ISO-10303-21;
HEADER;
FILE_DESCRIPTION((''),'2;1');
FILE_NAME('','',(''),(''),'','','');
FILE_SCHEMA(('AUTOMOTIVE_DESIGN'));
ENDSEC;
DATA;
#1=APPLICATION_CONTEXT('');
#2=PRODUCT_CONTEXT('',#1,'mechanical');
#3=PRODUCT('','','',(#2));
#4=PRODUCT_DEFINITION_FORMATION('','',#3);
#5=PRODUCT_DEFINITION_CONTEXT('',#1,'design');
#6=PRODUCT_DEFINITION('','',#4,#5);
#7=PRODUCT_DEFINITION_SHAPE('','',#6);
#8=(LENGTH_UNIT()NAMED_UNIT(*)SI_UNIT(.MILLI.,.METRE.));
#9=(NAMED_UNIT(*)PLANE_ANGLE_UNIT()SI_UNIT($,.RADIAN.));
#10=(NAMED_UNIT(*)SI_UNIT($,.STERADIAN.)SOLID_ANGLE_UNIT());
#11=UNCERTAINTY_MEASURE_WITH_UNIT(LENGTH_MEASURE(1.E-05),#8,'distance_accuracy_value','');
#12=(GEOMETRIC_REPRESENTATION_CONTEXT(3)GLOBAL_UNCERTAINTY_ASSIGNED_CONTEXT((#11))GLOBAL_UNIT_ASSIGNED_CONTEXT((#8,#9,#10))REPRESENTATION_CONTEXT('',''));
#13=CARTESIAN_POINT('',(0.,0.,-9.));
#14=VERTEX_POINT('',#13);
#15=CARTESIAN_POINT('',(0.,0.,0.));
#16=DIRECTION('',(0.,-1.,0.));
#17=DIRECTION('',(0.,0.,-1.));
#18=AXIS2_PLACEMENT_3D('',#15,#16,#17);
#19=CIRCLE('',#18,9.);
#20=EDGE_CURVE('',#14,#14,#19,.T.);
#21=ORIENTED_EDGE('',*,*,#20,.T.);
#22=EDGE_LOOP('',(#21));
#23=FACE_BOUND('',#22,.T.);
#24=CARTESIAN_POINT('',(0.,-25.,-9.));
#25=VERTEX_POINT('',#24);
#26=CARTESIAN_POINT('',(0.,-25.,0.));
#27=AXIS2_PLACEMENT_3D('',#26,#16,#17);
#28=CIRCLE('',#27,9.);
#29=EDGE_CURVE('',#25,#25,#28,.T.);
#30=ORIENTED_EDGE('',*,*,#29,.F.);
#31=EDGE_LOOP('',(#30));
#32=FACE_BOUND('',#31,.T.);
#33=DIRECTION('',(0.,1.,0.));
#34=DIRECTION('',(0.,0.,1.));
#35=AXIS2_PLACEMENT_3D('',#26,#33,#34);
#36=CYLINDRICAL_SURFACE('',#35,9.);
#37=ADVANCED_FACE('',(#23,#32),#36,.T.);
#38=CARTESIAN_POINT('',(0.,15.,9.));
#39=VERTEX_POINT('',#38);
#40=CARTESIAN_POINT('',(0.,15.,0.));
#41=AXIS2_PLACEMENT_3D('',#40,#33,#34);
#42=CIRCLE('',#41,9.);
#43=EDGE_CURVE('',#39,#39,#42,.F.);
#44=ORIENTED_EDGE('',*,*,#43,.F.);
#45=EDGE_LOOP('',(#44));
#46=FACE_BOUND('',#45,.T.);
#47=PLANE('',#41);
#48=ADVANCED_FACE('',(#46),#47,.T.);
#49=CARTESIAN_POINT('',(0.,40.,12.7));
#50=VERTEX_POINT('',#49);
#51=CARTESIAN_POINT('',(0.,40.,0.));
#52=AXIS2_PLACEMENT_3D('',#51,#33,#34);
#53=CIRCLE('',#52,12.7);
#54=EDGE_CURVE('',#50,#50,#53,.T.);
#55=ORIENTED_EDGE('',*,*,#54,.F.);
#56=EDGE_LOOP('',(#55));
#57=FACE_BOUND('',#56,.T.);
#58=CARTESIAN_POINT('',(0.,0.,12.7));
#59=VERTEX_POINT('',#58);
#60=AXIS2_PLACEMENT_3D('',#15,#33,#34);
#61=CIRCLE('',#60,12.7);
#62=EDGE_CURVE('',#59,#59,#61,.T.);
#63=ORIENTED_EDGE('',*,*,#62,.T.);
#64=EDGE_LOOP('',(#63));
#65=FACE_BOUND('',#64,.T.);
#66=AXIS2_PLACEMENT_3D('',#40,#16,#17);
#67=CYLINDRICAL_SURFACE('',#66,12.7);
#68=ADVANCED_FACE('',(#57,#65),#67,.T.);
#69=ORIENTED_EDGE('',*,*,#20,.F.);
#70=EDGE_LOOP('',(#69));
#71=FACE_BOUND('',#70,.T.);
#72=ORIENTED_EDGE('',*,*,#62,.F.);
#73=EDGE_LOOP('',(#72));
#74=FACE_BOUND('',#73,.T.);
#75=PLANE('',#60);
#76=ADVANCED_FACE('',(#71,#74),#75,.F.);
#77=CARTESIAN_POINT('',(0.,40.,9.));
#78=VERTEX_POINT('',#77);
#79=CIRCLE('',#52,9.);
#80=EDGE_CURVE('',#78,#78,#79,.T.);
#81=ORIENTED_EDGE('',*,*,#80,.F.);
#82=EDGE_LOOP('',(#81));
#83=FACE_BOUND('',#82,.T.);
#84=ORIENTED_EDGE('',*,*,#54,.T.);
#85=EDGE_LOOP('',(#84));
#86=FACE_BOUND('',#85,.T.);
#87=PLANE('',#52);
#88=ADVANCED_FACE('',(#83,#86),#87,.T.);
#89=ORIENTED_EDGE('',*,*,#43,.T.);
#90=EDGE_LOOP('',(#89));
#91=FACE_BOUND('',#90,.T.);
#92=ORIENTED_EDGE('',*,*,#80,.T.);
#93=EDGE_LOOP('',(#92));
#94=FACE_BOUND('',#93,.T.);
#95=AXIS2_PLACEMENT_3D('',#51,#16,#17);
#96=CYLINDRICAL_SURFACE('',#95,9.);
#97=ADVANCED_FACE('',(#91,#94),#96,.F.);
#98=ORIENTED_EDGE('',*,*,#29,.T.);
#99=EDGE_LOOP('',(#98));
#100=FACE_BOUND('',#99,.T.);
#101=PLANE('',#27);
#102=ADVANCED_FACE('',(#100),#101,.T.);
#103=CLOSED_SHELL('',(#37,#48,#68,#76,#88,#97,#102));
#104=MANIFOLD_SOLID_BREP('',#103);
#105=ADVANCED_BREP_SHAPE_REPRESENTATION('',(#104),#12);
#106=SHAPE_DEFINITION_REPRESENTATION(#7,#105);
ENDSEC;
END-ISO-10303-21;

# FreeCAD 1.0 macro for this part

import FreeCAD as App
import Part
import Sketcher

doc = App.newDocument("Part")
params = doc.addObject("Spreadsheet::Sheet", "Params")
for row, (alias, value) in enumerate([
    ("sketch1_diameter", "25.4 mm"),
    ("pad1_length", "15 mm"),
    ("sketch2_diameter", "18 mm"),
    ("pad2_length", "25 mm"),
    ("sketch3_diameter", "18 mm"),
    ("sketch3_diameter2", "25.4 mm"),
    ("pad3_length", "25 mm"),
], start=1):
    params.set(f"A{row}", alias)
    params.set(f"B{row}", "=" + value)
    params.setAlias(f"B{row}", alias)

body = doc.addObject("PartDesign::Body", "Body")

sketch1 = body.newObject("Sketcher::SketchObject", "Sketch")
sketch1.AttachmentSupport = (doc.getObject("XZ_Plane"), [""])
sketch1.MapMode = "FlatFace"
sketch1.addGeometry(Part.Circle(App.Vector(0, 0, 0), App.Vector(0, 0, 1), 13), False)
sketch1.addConstraint(Sketcher.Constraint("Coincident", 0, 3, -1, 1))
sketch1.addConstraint(Sketcher.Constraint("Diameter", 0, 25.4))
sketch1.setExpression("Constraints[1]", "Params.sketch1_diameter")
pad1 = body.newObject("PartDesign::Pad", "Pad")
pad1.Profile = sketch1
pad1.setExpression("Length", "Params.pad1_length")
pad1.Reversed = True

sketch2 = body.newObject("Sketcher::SketchObject", "Sketch001")
sketch2.AttachmentSupport = (doc.getObject("XZ_Plane"), [""])
sketch2.MapMode = "FlatFace"
sketch2.addGeometry(Part.Circle(App.Vector(0, 0, 0), App.Vector(0, 0, 1), 9), False)
sketch2.addConstraint(Sketcher.Constraint("Coincident", 0, 3, -1, 1))
sketch2.addConstraint(Sketcher.Constraint("Diameter", 0, 18.0))
sketch2.setExpression("Constraints[1]", "Params.sketch2_diameter")
pad2 = body.newObject("PartDesign::Pad", "Pad001")
pad2.Profile = sketch2
pad2.setExpression("Length", "Params.pad2_length")

sketch3 = body.newObject("Sketcher::SketchObject", "Sketch002")
sketch3.AttachmentSupport = (doc.getObject("XZ_Plane"), [""])
sketch3.MapMode = "FlatFace"
sketch3.AttachmentOffset = App.Placement(App.Vector(0, 0, -15), App.Rotation())
sketch3.addGeometry(Part.Circle(App.Vector(0, 0, 0), App.Vector(0, 0, 1), 13), False)
sketch3.addGeometry(Part.Circle(App.Vector(0, 0, 0), App.Vector(0, 0, 1), 9), False)
sketch3.addConstraint(Sketcher.Constraint("Coincident", 0, 3, -1, 1))
sketch3.addConstraint(Sketcher.Constraint("Coincident", 1, 3, -1, 1))
sketch3.addConstraint(Sketcher.Constraint("Diameter", 1, 18.0))
sketch3.addConstraint(Sketcher.Constraint("Diameter", 0, 25.4))
sketch3.setExpression("Constraints[2]", "Params.sketch3_diameter")
sketch3.setExpression("Constraints[3]", "Params.sketch3_diameter2")
pad3 = body.newObject("PartDesign::Pad", "Pad002")
pad3.Profile = sketch3
pad3.setExpression("Length", "Params.pad3_length")
pad3.Reversed = True

doc.recompute()
